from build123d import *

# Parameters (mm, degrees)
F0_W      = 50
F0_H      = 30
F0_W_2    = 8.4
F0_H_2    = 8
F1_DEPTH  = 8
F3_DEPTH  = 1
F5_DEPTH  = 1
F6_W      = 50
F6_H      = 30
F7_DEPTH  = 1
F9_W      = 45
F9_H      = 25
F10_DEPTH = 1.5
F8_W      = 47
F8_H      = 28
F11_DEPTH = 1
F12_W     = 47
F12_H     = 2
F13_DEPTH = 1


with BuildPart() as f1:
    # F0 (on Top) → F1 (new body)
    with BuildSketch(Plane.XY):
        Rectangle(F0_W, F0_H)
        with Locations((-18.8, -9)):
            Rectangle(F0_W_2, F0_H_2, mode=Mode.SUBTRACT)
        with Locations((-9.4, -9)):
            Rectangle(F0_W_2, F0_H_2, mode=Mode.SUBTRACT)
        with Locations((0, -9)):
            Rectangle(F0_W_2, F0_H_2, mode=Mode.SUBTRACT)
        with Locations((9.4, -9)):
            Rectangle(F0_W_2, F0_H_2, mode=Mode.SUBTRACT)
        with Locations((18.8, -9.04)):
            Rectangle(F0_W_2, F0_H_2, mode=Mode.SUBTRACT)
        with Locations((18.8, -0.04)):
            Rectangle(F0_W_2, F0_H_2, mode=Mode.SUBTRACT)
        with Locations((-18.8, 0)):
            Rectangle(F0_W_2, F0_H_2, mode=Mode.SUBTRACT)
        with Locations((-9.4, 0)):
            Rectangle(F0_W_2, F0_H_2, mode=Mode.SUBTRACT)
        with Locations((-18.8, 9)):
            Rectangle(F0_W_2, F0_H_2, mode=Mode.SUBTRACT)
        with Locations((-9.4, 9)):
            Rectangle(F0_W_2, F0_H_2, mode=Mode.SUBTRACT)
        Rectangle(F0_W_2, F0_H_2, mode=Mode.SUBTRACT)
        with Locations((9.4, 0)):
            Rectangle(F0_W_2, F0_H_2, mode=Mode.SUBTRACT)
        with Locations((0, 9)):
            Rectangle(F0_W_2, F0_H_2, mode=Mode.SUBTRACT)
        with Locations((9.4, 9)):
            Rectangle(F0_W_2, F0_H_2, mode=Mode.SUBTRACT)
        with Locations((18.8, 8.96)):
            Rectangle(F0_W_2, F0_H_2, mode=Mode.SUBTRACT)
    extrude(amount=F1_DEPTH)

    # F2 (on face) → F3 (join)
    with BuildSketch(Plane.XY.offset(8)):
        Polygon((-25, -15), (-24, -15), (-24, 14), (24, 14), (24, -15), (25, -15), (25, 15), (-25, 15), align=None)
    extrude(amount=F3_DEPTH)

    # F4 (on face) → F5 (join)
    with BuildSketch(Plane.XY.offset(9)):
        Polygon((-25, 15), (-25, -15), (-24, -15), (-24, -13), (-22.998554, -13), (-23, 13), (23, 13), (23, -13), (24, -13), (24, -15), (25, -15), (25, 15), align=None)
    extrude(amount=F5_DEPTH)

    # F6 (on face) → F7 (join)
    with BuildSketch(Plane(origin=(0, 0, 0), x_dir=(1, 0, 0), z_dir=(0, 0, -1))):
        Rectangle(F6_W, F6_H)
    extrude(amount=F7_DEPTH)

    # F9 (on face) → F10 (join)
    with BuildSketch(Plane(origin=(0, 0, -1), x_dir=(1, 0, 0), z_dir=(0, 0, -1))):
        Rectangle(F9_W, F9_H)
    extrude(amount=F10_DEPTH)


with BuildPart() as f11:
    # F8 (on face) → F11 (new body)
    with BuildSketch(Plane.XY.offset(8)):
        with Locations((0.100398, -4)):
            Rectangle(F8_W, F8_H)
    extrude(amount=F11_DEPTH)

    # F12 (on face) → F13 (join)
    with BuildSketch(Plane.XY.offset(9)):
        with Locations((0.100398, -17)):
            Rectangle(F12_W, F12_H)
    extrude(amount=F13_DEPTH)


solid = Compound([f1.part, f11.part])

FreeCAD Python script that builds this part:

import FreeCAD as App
import Part
import Sketcher
from FreeCAD import Vector
Q = App.Units.Quantity

doc = App.newDocument("Part")
body = doc.addObject("PartDesign::Body", "Body")

sketch1 = doc.addObject("Sketcher::SketchObject", "Sketch")
body.addObject(sketch1)
sketch1.AttachmentSupport = (doc.XY_Plane, [""])
sketch1.MapMode = "FlatFace"
sketch1.addGeometry([
    Part.LineSegment(Vector(-25, 15, 0), Vector(-25, -15, 0)),
    Part.LineSegment(Vector(-25, -15, 0), Vector(25, -15, 0)),
    Part.LineSegment(Vector(25, -15, 0), Vector(25, 15, 0)),
    Part.LineSegment(Vector(25, 15, 0), Vector(-25, 15, 0)),
    Part.LineSegment(Vector(-15, -13, 0), Vector(-23, -13, 0)),
    Part.LineSegment(Vector(-23, -13, 0), Vector(-23, -5, 0)),
    Part.LineSegment(Vector(-23, -5, 0), Vector(-15, -5, 0)),
    Part.LineSegment(Vector(-15, -5, 0), Vector(-15, -13, 0)),
    Part.LineSegment(Vector(-5, -13, 0), Vector(-14, -13, 0)),
    Part.LineSegment(Vector(-14, -13, 0), Vector(-14, -5, 0)),
    Part.LineSegment(Vector(-14, -5, 0), Vector(-5, -5, 0)),
    Part.LineSegment(Vector(-5, -5, 0), Vector(-5, -13, 0)),
    Part.LineSegment(Vector(4, -13, 0), Vector(-4, -13, 0)),
    Part.LineSegment(Vector(-4, -13, 0), Vector(-4, -5, 0)),
    Part.LineSegment(Vector(-4, -5, 0), Vector(4, -5, 0)),
    Part.LineSegment(Vector(4, -5, 0), Vector(4, -13, 0)),
    Part.LineSegment(Vector(14, -13, 0), Vector(5, -13, 0)),
    Part.LineSegment(Vector(5, -13, 0), Vector(5, -5, 0)),
    Part.LineSegment(Vector(5, -5, 0), Vector(14, -5, 0)),
    Part.LineSegment(Vector(14, -5, 0), Vector(14, -13, 0)),
    Part.LineSegment(Vector(23, -13, 0), Vector(15, -13, 0)),
    Part.LineSegment(Vector(15, -13, 0), Vector(15, -5, 0)),
    Part.LineSegment(Vector(15, -5, 0), Vector(23, -5, 0)),
    Part.LineSegment(Vector(23, -5, 0), Vector(23, -13, 0)),
    Part.LineSegment(Vector(23, -4, 0), Vector(15, -4, 0)),
    Part.LineSegment(Vector(15, -4, 0), Vector(15, 4, 0)),
    Part.LineSegment(Vector(15, 4, 0), Vector(23, 4, 0)),
    Part.LineSegment(Vector(23, 4, 0), Vector(23, -4, 0)),
    Part.LineSegment(Vector(-15, -4, 0), Vector(-23, -4, 0)),
    Part.LineSegment(Vector(-23, -4, 0), Vector(-23, 4, 0)),
    Part.LineSegment(Vector(-23, 4, 0), Vector(-15, 4, 0)),
    Part.LineSegment(Vector(-15, 4, 0), Vector(-15, -4, 0)),
    Part.LineSegment(Vector(-5, -4, 0), Vector(-14, -4, 0)),
    Part.LineSegment(Vector(-14, -4, 0), Vector(-14, 4, 0)),
    Part.LineSegment(Vector(-14, 4, 0), Vector(-5, 4, 0)),
    Part.LineSegment(Vector(-5, 4, 0), Vector(-5, -4, 0)),
    Part.LineSegment(Vector(-15, 5, 0), Vector(-23, 5, 0)),
    Part.LineSegment(Vector(-23, 5, 0), Vector(-23, 13, 0)),
    Part.LineSegment(Vector(-23, 13, 0), Vector(-15, 13, 0)),
    Part.LineSegment(Vector(-15, 13, 0), Vector(-15, 5, 0)),
    Part.LineSegment(Vector(-5, 5, 0), Vector(-14, 5, 0)),
    Part.LineSegment(Vector(-14, 5, 0), Vector(-14, 13, 0)),
    Part.LineSegment(Vector(-14, 13, 0), Vector(-5, 13, 0)),
    Part.LineSegment(Vector(-5, 13, 0), Vector(-5, 5, 0)),
    Part.LineSegment(Vector(4, -4, 0), Vector(-4, -4, 0)),
    Part.LineSegment(Vector(-4, -4, 0), Vector(-4, 4, 0)),
    Part.LineSegment(Vector(-4, 4, 0), Vector(4, 4, 0)),
    Part.LineSegment(Vector(4, 4, 0), Vector(4, -4, 0)),
    Part.LineSegment(Vector(14, -4, 0), Vector(5, -4, 0)),
    Part.LineSegment(Vector(5, -4, 0), Vector(5, 4, 0)),
    Part.LineSegment(Vector(5, 4, 0), Vector(14, 4, 0)),
    Part.LineSegment(Vector(14, 4, 0), Vector(14, -4, 0)),
    Part.LineSegment(Vector(4, 5, 0), Vector(-4, 5, 0)),
    Part.LineSegment(Vector(-4, 5, 0), Vector(-4, 13, 0)),
    Part.LineSegment(Vector(-4, 13, 0), Vector(4, 13, 0)),
    Part.LineSegment(Vector(4, 13, 0), Vector(4, 5, 0)),
    Part.LineSegment(Vector(14, 5, 0), Vector(5, 5, 0)),
    Part.LineSegment(Vector(5, 5, 0), Vector(5, 13, 0)),
    Part.LineSegment(Vector(5, 13, 0), Vector(14, 13, 0)),
    Part.LineSegment(Vector(14, 13, 0), Vector(14, 5, 0)),
    Part.LineSegment(Vector(23, 5, 0), Vector(15, 5, 0)),
    Part.LineSegment(Vector(15, 5, 0), Vector(15, 13, 0)),
    Part.LineSegment(Vector(15, 13, 0), Vector(23, 13, 0)),
    Part.LineSegment(Vector(23, 13, 0), Vector(23, 5, 0)),
], False)
sketch1.addConstraint([
    Sketcher.Constraint("Coincident", 0, 2, 1, 1),
    Sketcher.Constraint("Coincident", 1, 2, 2, 1),
    Sketcher.Constraint("Coincident", 2, 2, 3, 1),
    Sketcher.Constraint("Coincident", 3, 2, 0, 1),
    Sketcher.Constraint("Coincident", 4, 2, 5, 1),
    Sketcher.Constraint("Coincident", 5, 2, 6, 1),
    Sketcher.Constraint("Coincident", 6, 2, 7, 1),
    Sketcher.Constraint("Coincident", 7, 2, 4, 1),
    Sketcher.Constraint("Coincident", 8, 2, 9, 1),
    Sketcher.Constraint("Coincident", 9, 2, 10, 1),
    Sketcher.Constraint("Coincident", 10, 2, 11, 1),
    Sketcher.Constraint("Coincident", 11, 2, 8, 1),
    Sketcher.Constraint("Coincident", 12, 2, 13, 1),
    Sketcher.Constraint("Coincident", 13, 2, 14, 1),
    Sketcher.Constraint("Coincident", 14, 2, 15, 1),
    Sketcher.Constraint("Coincident", 15, 2, 12, 1),
    Sketcher.Constraint("Coincident", 16, 2, 17, 1),
    Sketcher.Constraint("Coincident", 17, 2, 18, 1),
    Sketcher.Constraint("Coincident", 18, 2, 19, 1),
    Sketcher.Constraint("Coincident", 19, 2, 16, 1),
    Sketcher.Constraint("Coincident", 20, 2, 21, 1),
    Sketcher.Constraint("Coincident", 21, 2, 22, 1),
    Sketcher.Constraint("Coincident", 22, 2, 23, 1),
    Sketcher.Constraint("Coincident", 23, 2, 20, 1),
    Sketcher.Constraint("Coincident", 24, 2, 25, 1),
    Sketcher.Constraint("Coincident", 25, 2, 26, 1),
    Sketcher.Constraint("Coincident", 26, 2, 27, 1),
    Sketcher.Constraint("Coincident", 27, 2, 24, 1),
    Sketcher.Constraint("Coincident", 28, 2, 29, 1),
    Sketcher.Constraint("Coincident", 29, 2, 30, 1),
    Sketcher.Constraint("Coincident", 30, 2, 31, 1),
    Sketcher.Constraint("Coincident", 31, 2, 28, 1),
    Sketcher.Constraint("Coincident", 32, 2, 33, 1),
    Sketcher.Constraint("Coincident", 33, 2, 34, 1),
    Sketcher.Constraint("Coincident", 34, 2, 35, 1),
    Sketcher.Constraint("Coincident", 35, 2, 32, 1),
    Sketcher.Constraint("Coincident", 36, 2, 37, 1),
    Sketcher.Constraint("Coincident", 37, 2, 38, 1),
    Sketcher.Constraint("Coincident", 38, 2, 39, 1),
    Sketcher.Constraint("Coincident", 39, 2, 36, 1),
    Sketcher.Constraint("Coincident", 40, 2, 41, 1),
    Sketcher.Constraint("Coincident", 41, 2, 42, 1),
    Sketcher.Constraint("Coincident", 42, 2, 43, 1),
    Sketcher.Constraint("Coincident", 43, 2, 40, 1),
    Sketcher.Constraint("Coincident", 44, 2, 45, 1),
    Sketcher.Constraint("Coincident", 45, 2, 46, 1),
    Sketcher.Constraint("Coincident", 46, 2, 47, 1),
    Sketcher.Constraint("Coincident", 47, 2, 44, 1),
    Sketcher.Constraint("Coincident", 48, 2, 49, 1),
    Sketcher.Constraint("Coincident", 49, 2, 50, 1),
    Sketcher.Constraint("Coincident", 50, 2, 51, 1),
    Sketcher.Constraint("Coincident", 51, 2, 48, 1),
    Sketcher.Constraint("Coincident", 52, 2, 53, 1),
    Sketcher.Constraint("Coincident", 53, 2, 54, 1),
    Sketcher.Constraint("Coincident", 54, 2, 55, 1),
    Sketcher.Constraint("Coincident", 55, 2, 52, 1),
    Sketcher.Constraint("Coincident", 56, 2, 57, 1),
    Sketcher.Constraint("Coincident", 57, 2, 58, 1),
    Sketcher.Constraint("Coincident", 58, 2, 59, 1),
    Sketcher.Constraint("Coincident", 59, 2, 56, 1),
    Sketcher.Constraint("Coincident", 60, 2, 61, 1),
    Sketcher.Constraint("Coincident", 61, 2, 62, 1),
    Sketcher.Constraint("Coincident", 62, 2, 63, 1),
    Sketcher.Constraint("Coincident", 63, 2, 60, 1),
    Sketcher.Constraint("Vertical", 0),
    Sketcher.Constraint("Horizontal", 1),
    Sketcher.Constraint("Vertical", 2),
    Sketcher.Constraint("Horizontal", 3),
    Sketcher.Constraint("Horizontal", 4),
    Sketcher.Constraint("Vertical", 5),
    Sketcher.Constraint("Horizontal", 6),
    Sketcher.Constraint("Vertical", 7),
    Sketcher.Constraint("Horizontal", 8),
    Sketcher.Constraint("Vertical", 9),
    Sketcher.Constraint("Horizontal", 10),
    Sketcher.Constraint("Vertical", 11),
    Sketcher.Constraint("Horizontal", 12),
    Sketcher.Constraint("Vertical", 13),
    Sketcher.Constraint("Horizontal", 14),
    Sketcher.Constraint("Vertical", 15),
    Sketcher.Constraint("Horizontal", 16),
    Sketcher.Constraint("Vertical", 17),
    Sketcher.Constraint("Horizontal", 18),
    Sketcher.Constraint("Vertical", 19),
    Sketcher.Constraint("Horizontal", 20),
    Sketcher.Constraint("Vertical", 21),
    Sketcher.Constraint("Horizontal", 22),
    Sketcher.Constraint("Vertical", 23),
    Sketcher.Constraint("Horizontal", 24),
    Sketcher.Constraint("Vertical", 25),
    Sketcher.Constraint("Horizontal", 26),
    Sketcher.Constraint("Vertical", 27),
    Sketcher.Constraint("Horizontal", 28),
    Sketcher.Constraint("Vertical", 29),
    Sketcher.Constraint("Horizontal", 30),
    Sketcher.Constraint("Vertical", 31),
    Sketcher.Constraint("Horizontal", 32),
    Sketcher.Constraint("Vertical", 33),
    Sketcher.Constraint("Horizontal", 34),
    Sketcher.Constraint("Vertical", 35),
    Sketcher.Constraint("Horizontal", 36),
    Sketcher.Constraint("Vertical", 37),
    Sketcher.Constraint("Horizontal", 38),
    Sketcher.Constraint("Vertical", 39),
    Sketcher.Constraint("Horizontal", 40),
    Sketcher.Constraint("Vertical", 41),
    Sketcher.Constraint("Horizontal", 42),
    Sketcher.Constraint("Vertical", 43),
    Sketcher.Constraint("Horizontal", 44),
    Sketcher.Constraint("Vertical", 45),
    Sketcher.Constraint("Horizontal", 46),
    Sketcher.Constraint("Vertical", 47),
    Sketcher.Constraint("Horizontal", 48),
    Sketcher.Constraint("Vertical", 49),
    Sketcher.Constraint("Horizontal", 50),
    Sketcher.Constraint("Vertical", 51),
    Sketcher.Constraint("Horizontal", 52),
    Sketcher.Constraint("Vertical", 53),
    Sketcher.Constraint("Horizontal", 54),
    Sketcher.Constraint("Vertical", 55),
    Sketcher.Constraint("Horizontal", 56),
    Sketcher.Constraint("Vertical", 57),
    Sketcher.Constraint("Horizontal", 58),
    Sketcher.Constraint("Vertical", 59),
    Sketcher.Constraint("Horizontal", 60),
    Sketcher.Constraint("Vertical", 61),
    Sketcher.Constraint("Horizontal", 62),
    Sketcher.Constraint("Vertical", 63),
    Sketcher.Constraint("Symmetric", 0, 2, 2, 2, -1, 1),
    Sketcher.Constraint("Symmetric", 18, 2, 40, 2, -1, 1),
    Sketcher.Constraint("Symmetric", 16, 2, 42, 2, -1, 1),
    Sketcher.Constraint("Symmetric", 44, 2, 46, 2, -1, 1),
    Sketcher.Constraint("Symmetric", 34, 2, 48, 2, -1, 1),
    Sketcher.Constraint("Symmetric", 32, 2, 50, 2, -1, 1),
    Sketcher.Constraint("Symmetric", 14, 2, 52, 2, -1, 1),
    Sketcher.Constraint("Symmetric", 12, 2, 54, 2, -1, 1),
    Sketcher.Constraint("Symmetric", 10, 2, 56, 2, -1, 1),
    Sketcher.Constraint("Symmetric", 8, 2, 58, 2, -1, 1),
    Sketcher.Constraint("Symmetric", 11, 2, 16, 2, -2),
    Sketcher.Constraint("Symmetric", 9, 2, 18, 2, -2),
    Sketcher.Constraint("Symmetric", 5, 2, 36, 2, -1),
    Sketcher.Constraint("Symmetric", 7, 2, 38, 2, -1),
    Sketcher.Constraint("Horizontal", 7, 2, 8, 2),
    Sketcher.Constraint("Horizontal", 6, 2, 9, 2),
    Sketcher.Constraint("Horizontal", 11, 2, 12, 2),
    Sketcher.Constraint("Horizontal", 10, 2, 13, 2),
    Sketcher.Constraint("Horizontal", 31, 2, 32, 2),
    Sketcher.Constraint("Horizontal", 30, 2, 33, 2),
    Sketcher.Constraint("Horizontal", 35, 2, 44, 2),
    Sketcher.Constraint("Horizontal", 34, 2, 45, 2),
    Sketcher.Constraint("Vertical", 21, 2, 24, 2),
    Sketcher.Constraint("Vertical", 23, 2, 26, 2),
    Sketcher.Constraint("Vertical", 5, 2, 28, 2),
    Sketcher.Constraint("Vertical", 7, 2, 30, 2),
    Sketcher.Constraint("Vertical", 9, 2, 32, 2),
    Sketcher.Constraint("Vertical", 11, 2, 34, 2),
    Sketcher.Constraint("Vertical", 13, 2, 44, 2),
    Sketcher.Constraint("Vertical", 15, 2, 46, 2),
    Sketcher.Constraint("Vertical", 25, 2, 60, 2),
    Sketcher.Constraint("Vertical", 27, 2, 62, 2),
    Sketcher.Constraint("Equal", 6, 8),
    Sketcher.Constraint("Equal", 10, 12),
    Sketcher.Constraint("Equal", 18, 20),
    Sketcher.Constraint("Equal", 19, 21),
    Sketcher.Constraint("Equal", 23, 25),
    Sketcher.Constraint("Equal", 27, 29),
    Sketcher.Constraint("Equal", 59, 61),
    Sketcher.Constraint("DistanceX", 1, 1, 1, 2, Q("50 mm")),
    Sketcher.Constraint("DistanceY", 0, 2, 0, 1, Q("30 mm")),
    Sketcher.Constraint("DistanceY", 5, 1, 5, 2, Q("8 mm")),
    Sketcher.Constraint("DistanceX", 4, 2, 4, 1, Q("8.4 mm")),
    Sketcher.Constraint("DistanceX", 4, 2, -1, 1, Q("23 mm")),
    Sketcher.Constraint("DistanceY", 4, 2, -1, 1, Q("13 mm")),
    Sketcher.Constraint("DistanceX", -1, 1, 22, 2, Q("23 mm")),
    Sketcher.Constraint("DistanceX", 8, 2, -1, 1, Q("13.6 mm")),
    Sketcher.Constraint("DistanceY", 20, 2, -1, 1, Q("13.04 mm")),
    Sketcher.Constraint("DistanceY", 24, 2, -1, 1, Q("4.04 mm")),
    Sketcher.Constraint("DistanceY", -1, 1, 60, 2, Q("4.96 mm")),
])
pad1 = doc.addObject("PartDesign::Pad", "Pad")
body.addObject(pad1)
pad1.Profile = sketch1
pad1.Length = 8

sketch2 = doc.addObject("Sketcher::SketchObject", "Sketch001")
body.addObject(sketch2)
sketch2.AttachmentSupport = (doc.XY_Plane, [""])
sketch2.MapMode = "FlatFace"
sketch2.AttachmentOffset = App.Placement(Vector(0, 0, 8), App.Rotation())
sketch2.addGeometry([
    Part.LineSegment(Vector(-25, -15, 0), Vector(-24, -15, 0)),
    Part.LineSegment(Vector(-24, -15, 0), Vector(-24, 14, 0)),
    Part.LineSegment(Vector(-24, 14, 0), Vector(24, 14, 0)),
    Part.LineSegment(Vector(24, 14, 0), Vector(24, -15, 0)),
    Part.LineSegment(Vector(24, -15, 0), Vector(25, -15, 0)),
    Part.LineSegment(Vector(25, -15, 0), Vector(25, 15, 0)),
    Part.LineSegment(Vector(25, 15, 0), Vector(-25, 15, 0)),
    Part.LineSegment(Vector(-25, 15, 0), Vector(-25, -15, 0)),
], False)
sketch2.addConstraint([
    Sketcher.Constraint("Coincident", 0, 2, 1, 1),
    Sketcher.Constraint("Coincident", 1, 2, 2, 1),
    Sketcher.Constraint("Coincident", 2, 2, 3, 1),
    Sketcher.Constraint("Coincident", 3, 2, 4, 1),
    Sketcher.Constraint("Coincident", 4, 2, 5, 1),
    Sketcher.Constraint("Coincident", 5, 2, 6, 1),
    Sketcher.Constraint("Coincident", 6, 2, 7, 1),
    Sketcher.Constraint("Coincident", 7, 2, 0, 1),
    Sketcher.Constraint("Horizontal", 0),
    Sketcher.Constraint("Vertical", 1),
    Sketcher.Constraint("Horizontal", 2),
    Sketcher.Constraint("Vertical", 3),
    Sketcher.Constraint("Horizontal", 4),
    Sketcher.Constraint("Vertical", 5),
    Sketcher.Constraint("Horizontal", 6),
    Sketcher.Constraint("Vertical", 7),
    Sketcher.Constraint("Symmetric", 4, 2, 6, 2, -1, 1),
    Sketcher.Constraint("Symmetric", 0, 2, 3, 2, -2),
    Sketcher.Constraint("DistanceX", 0, 1, 0, 2, Q("1 mm")),
    Sketcher.Constraint("DistanceX", 2, 1, 2, 2, Q("48 mm")),
    Sketcher.Constraint("DistanceY", 1, 1, 1, 2, Q("29 mm")),
    Sketcher.Constraint("DistanceY", 5, 1, 5, 2, Q("30 mm")),
])
pad2 = doc.addObject("PartDesign::Pad", "Pad001")
body.addObject(pad2)
pad2.Profile = sketch2
pad2.Length = 1

sketch3 = doc.addObject("Sketcher::SketchObject", "Sketch002")
body.addObject(sketch3)
sketch3.AttachmentSupport = (doc.XY_Plane, [""])
sketch3.MapMode = "FlatFace"
sketch3.AttachmentOffset = App.Placement(Vector(0, 0, 9), App.Rotation())
sketch3.addGeometry([
    Part.LineSegment(Vector(-25, 15, 0), Vector(-25, -15, 0)),
    Part.LineSegment(Vector(-25, -15, 0), Vector(-24, -15, 0)),
    Part.LineSegment(Vector(-24, -15, 0), Vector(-24, -13, 0)),
    Part.LineSegment(Vector(-24, -13, 0), Vector(-23, -13, 0)),
    Part.LineSegment(Vector(-23, -13, 0), Vector(-23, 13, 0)),
    Part.LineSegment(Vector(-23, 13, 0), Vector(23, 13, 0)),
    Part.LineSegment(Vector(23, 13, 0), Vector(23, -13, 0)),
    Part.LineSegment(Vector(23, -13, 0), Vector(24, -13, 0)),
    Part.LineSegment(Vector(24, -13, 0), Vector(24, -15, 0)),
    Part.LineSegment(Vector(24, -15, 0), Vector(25, -15, 0)),
    Part.LineSegment(Vector(25, -15, 0), Vector(25, 15, 0)),
    Part.LineSegment(Vector(25, 15, 0), Vector(-25, 15, 0)),
], False)
sketch3.addConstraint([
    Sketcher.Constraint("Coincident", 0, 2, 1, 1),
    Sketcher.Constraint("Coincident", 1, 2, 2, 1),
    Sketcher.Constraint("Coincident", 2, 2, 3, 1),
    Sketcher.Constraint("Coincident", 3, 2, 4, 1),
    Sketcher.Constraint("Coincident", 4, 2, 5, 1),
    Sketcher.Constraint("Coincident", 5, 2, 6, 1),
    Sketcher.Constraint("Coincident", 6, 2, 7, 1),
    Sketcher.Constraint("Coincident", 7, 2, 8, 1),
    Sketcher.Constraint("Coincident", 8, 2, 9, 1),
    Sketcher.Constraint("Coincident", 9, 2, 10, 1),
    Sketcher.Constraint("Coincident", 10, 2, 11, 1),
    Sketcher.Constraint("Coincident", 11, 2, 0, 1),
    Sketcher.Constraint("Vertical", 0),
    Sketcher.Constraint("Horizontal", 1),
    Sketcher.Constraint("Vertical", 2),
    Sketcher.Constraint("Horizontal", 3),
    Sketcher.Constraint("Horizontal", 5),
    Sketcher.Constraint("Vertical", 6),
    Sketcher.Constraint("Horizontal", 7),
    Sketcher.Constraint("Vertical", 8),
    Sketcher.Constraint("Horizontal", 9),
    Sketcher.Constraint("Vertical", 10),
    Sketcher.Constraint("Horizontal", 11),
    Sketcher.Constraint("Symmetric", 4, 2, 6, 2, -1, 1),
    Sketcher.Constraint("Symmetric", 0, 2, 10, 2, -1, 1),
    Sketcher.Constraint("Symmetric", 2, 2, 7, 2, -2),
    Sketcher.Constraint("Horizontal", 1, 2, 8, 2),
    Sketcher.Constraint("Equal", 1, 7),
    Sketcher.Constraint("DistanceX", 1, 1, 1, 2, Q("1 mm")),
    Sketcher.Constraint("DistanceX", 5, 1, 5, 2, Q("46 mm")),
    Sketcher.Constraint("DistanceY", 0, 2, 0, 1, Q("30 mm")),
    Sketcher.Constraint("DistanceY", 2, 1, 2, 2, Q("2 mm")),
    Sketcher.Constraint("DistanceX", 3, 1, 3, 2, Q("1.001446 mm")),
])
pad3 = doc.addObject("PartDesign::Pad", "Pad002")
body.addObject(pad3)
pad3.Profile = sketch3
pad3.Length = 1

sketch4 = doc.addObject("Sketcher::SketchObject", "Sketch003")
body.addObject(sketch4)
sketch4.AttachmentSupport = (doc.XY_Plane, [""])
sketch4.MapMode = "FlatFace"
sketch4.addGeometry([
    Part.LineSegment(Vector(-25, -15, 0), Vector(-25, 15, 0)),
    Part.LineSegment(Vector(-25, 15, 0), Vector(25, 15, 0)),
    Part.LineSegment(Vector(25, 15, 0), Vector(25, -15, 0)),
    Part.LineSegment(Vector(25, -15, 0), Vector(-25, -15, 0)),
], False)
sketch4.addConstraint([
    Sketcher.Constraint("Coincident", 0, 2, 1, 1),
    Sketcher.Constraint("Coincident", 1, 2, 2, 1),
    Sketcher.Constraint("Coincident", 2, 2, 3, 1),
    Sketcher.Constraint("Coincident", 3, 2, 0, 1),
    Sketcher.Constraint("Vertical", 0),
    Sketcher.Constraint("Horizontal", 1),
    Sketcher.Constraint("Vertical", 2),
    Sketcher.Constraint("Horizontal", 3),
    Sketcher.Constraint("Symmetric", 0, 2, 2, 2, -1, 1),
    Sketcher.Constraint("DistanceX", 1, 1, 1, 2, Q("50 mm")),
    Sketcher.Constraint("DistanceY", 0, 1, 0, 2, Q("30 mm")),
])
pad4 = doc.addObject("PartDesign::Pad", "Pad003")
body.addObject(pad4)
pad4.Profile = sketch4
pad4.Length = 1
pad4.Reversed = True

sketch5 = doc.addObject("Sketcher::SketchObject", "Sketch004")
body.addObject(sketch5)
sketch5.AttachmentSupport = (doc.XY_Plane, [""])
sketch5.MapMode = "FlatFace"
sketch5.AttachmentOffset = App.Placement(Vector(0, 0, -1), App.Rotation())
sketch5.addGeometry([
    Part.LineSegment(Vector(-22, -12, 0), Vector(-22, 12, 0)),
    Part.LineSegment(Vector(-22, 12, 0), Vector(22, 12, 0)),
    Part.LineSegment(Vector(22, 12, 0), Vector(22, -12, 0)),
    Part.LineSegment(Vector(22, -12, 0), Vector(-22, -12, 0)),
], False)
sketch5.addConstraint([
    Sketcher.Constraint("Coincident", 0, 2, 1, 1),
    Sketcher.Constraint("Coincident", 1, 2, 2, 1),
    Sketcher.Constraint("Coincident", 2, 2, 3, 1),
    Sketcher.Constraint("Coincident", 3, 2, 0, 1),
    Sketcher.Constraint("Vertical", 0),
    Sketcher.Constraint("Horizontal", 1),
    Sketcher.Constraint("Vertical", 2),
    Sketcher.Constraint("Horizontal", 3),
    Sketcher.Constraint("Symmetric", 0, 2, 2, 2, -1, 1),
    Sketcher.Constraint("DistanceX", 1, 1, 1, 2, Q("45 mm")),
    Sketcher.Constraint("DistanceY", 0, 1, 0, 2, Q("25 mm")),
])
pad5 = doc.addObject("PartDesign::Pad", "Pad004")
body.addObject(pad5)
pad5.Profile = sketch5
pad5.Length = 1.5
pad5.Reversed = True
body2 = doc.addObject("PartDesign::Body", "Body001")

sketch6 = doc.addObject("Sketcher::SketchObject", "Sketch005")
body2.addObject(sketch6)
sketch6.AttachmentSupport = (doc.getObject("XY_Plane001"), [""])
sketch6.MapMode = "FlatFace"
sketch6.AttachmentOffset = App.Placement(Vector(0, 0, 8), App.Rotation())
sketch6.addGeometry([
    Part.LineSegment(Vector(-23, 10, 0), Vector(-23, -18, 0)),
    Part.LineSegment(Vector(-23, -18, 0), Vector(24, -18, 0)),
    Part.LineSegment(Vector(24, -18, 0), Vector(24, 10, 0)),
    Part.LineSegment(Vector(24, 10, 0), Vector(-23, 10, 0)),
], False)
sketch6.addConstraint([
    Sketcher.Constraint("Coincident", 0, 2, 1, 1),
    Sketcher.Constraint("Coincident", 1, 2, 2, 1),
    Sketcher.Constraint("Coincident", 2, 2, 3, 1),
    Sketcher.Constraint("Coincident", 3, 2, 0, 1),
    Sketcher.Constraint("Vertical", 0),
    Sketcher.Constraint("Horizontal", 1),
    Sketcher.Constraint("Vertical", 2),
    Sketcher.Constraint("Horizontal", 3),
    Sketcher.Constraint("DistanceX", 1, 1, 1, 2, Q("47 mm")),
    Sketcher.Constraint("DistanceY", 0, 2, 0, 1, Q("28 mm")),
    Sketcher.Constraint("DistanceY", 0, 2, -1, 1, Q("18 mm")),
    Sketcher.Constraint("DistanceX", 0, 2, -1, 1, Q("23.399602 mm")),
])
pad6 = doc.addObject("PartDesign::Pad", "Pad005")
body2.addObject(pad6)
pad6.Profile = sketch6
pad6.Length = 1

sketch7 = doc.addObject("Sketcher::SketchObject", "Sketch006")
body2.addObject(sketch7)
sketch7.AttachmentSupport = (doc.getObject("XY_Plane001"), [""])
sketch7.MapMode = "FlatFace"
sketch7.AttachmentOffset = App.Placement(Vector(0, 0, 9), App.Rotation())
sketch7.addGeometry([
    Part.LineSegment(Vector(-23.4, -16, 0), Vector(-23.4, -18, 0)),
    Part.LineSegment(Vector(-23.4, -18, 0), Vector(23.6, -18, 0)),
    Part.LineSegment(Vector(23.6, -18, 0), Vector(23.6, -16, 0)),
    Part.LineSegment(Vector(23.6, -16, 0), Vector(-23.4, -16, 0)),
], False)
sketch7.addConstraint([
    Sketcher.Constraint("Coincident", 0, 2, 1, 1),
    Sketcher.Constraint("Coincident", 1, 2, 2, 1),
    Sketcher.Constraint("Coincident", 2, 2, 3, 1),
    Sketcher.Constraint("Coincident", 3, 2, 0, 1),
    Sketcher.Constraint("Vertical", 0),
    Sketcher.Constraint("Horizontal", 1),
    Sketcher.Constraint("Vertical", 2),
    Sketcher.Constraint("Horizontal", 3),
    Sketcher.Constraint("DistanceX", 1, 1, 1, 2, Q("47 mm")),
    Sketcher.Constraint("DistanceY", 0, 2, 0, 1, Q("2 mm")),
    Sketcher.Constraint("DistanceY", 0, 2, -1, 1, Q("18 mm")),
    Sketcher.Constraint("DistanceX", 0, 2, -1, 1, Q("23.399602 mm")),
])
pad7 = doc.addObject("PartDesign::Pad", "Pad006")
body2.addObject(pad7)
pad7.Profile = sketch7
pad7.Length = 1

doc.recompute()
